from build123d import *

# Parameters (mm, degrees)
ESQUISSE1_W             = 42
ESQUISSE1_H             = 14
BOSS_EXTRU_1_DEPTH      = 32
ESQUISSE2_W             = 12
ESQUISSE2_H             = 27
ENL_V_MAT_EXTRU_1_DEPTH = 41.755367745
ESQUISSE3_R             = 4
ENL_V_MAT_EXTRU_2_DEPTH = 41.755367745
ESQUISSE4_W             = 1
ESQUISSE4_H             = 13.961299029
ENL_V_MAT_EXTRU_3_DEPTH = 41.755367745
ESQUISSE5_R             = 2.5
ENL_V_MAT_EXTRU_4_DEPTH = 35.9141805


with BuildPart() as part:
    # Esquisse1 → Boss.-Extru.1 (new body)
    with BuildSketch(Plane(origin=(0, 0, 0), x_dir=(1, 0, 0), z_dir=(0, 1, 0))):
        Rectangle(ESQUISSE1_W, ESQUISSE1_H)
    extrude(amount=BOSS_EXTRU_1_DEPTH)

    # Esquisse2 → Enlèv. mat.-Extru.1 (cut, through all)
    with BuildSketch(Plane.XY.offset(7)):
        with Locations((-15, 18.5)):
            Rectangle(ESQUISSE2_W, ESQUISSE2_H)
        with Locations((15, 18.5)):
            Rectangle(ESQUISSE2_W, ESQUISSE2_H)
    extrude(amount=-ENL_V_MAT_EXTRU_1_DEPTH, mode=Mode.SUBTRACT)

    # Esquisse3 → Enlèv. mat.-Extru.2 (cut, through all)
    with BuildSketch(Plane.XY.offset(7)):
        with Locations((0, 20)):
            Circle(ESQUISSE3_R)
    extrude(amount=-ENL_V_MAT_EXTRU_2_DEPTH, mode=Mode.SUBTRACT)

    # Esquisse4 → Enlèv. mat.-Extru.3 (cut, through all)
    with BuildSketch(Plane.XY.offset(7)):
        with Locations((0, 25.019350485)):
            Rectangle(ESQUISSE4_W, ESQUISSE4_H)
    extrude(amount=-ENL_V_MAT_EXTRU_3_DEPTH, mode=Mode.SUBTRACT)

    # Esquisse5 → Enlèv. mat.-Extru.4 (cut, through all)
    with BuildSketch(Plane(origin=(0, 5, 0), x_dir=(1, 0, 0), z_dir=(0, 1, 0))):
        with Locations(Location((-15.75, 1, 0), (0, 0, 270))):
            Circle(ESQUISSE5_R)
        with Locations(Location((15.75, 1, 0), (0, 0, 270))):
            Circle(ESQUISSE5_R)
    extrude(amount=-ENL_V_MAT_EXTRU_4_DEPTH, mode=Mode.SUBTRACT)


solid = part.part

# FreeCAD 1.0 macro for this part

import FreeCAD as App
import Part
import Sketcher


def add_polygon(sketch, points):
    """Adds a closed chain of lines whose ends are joined by coincident constraints."""
    first, n = sketch.GeometryCount, len(points)
    for a, b in zip(points, points[1:] + points[:1]):
        sketch.addGeometry(Part.LineSegment(App.Vector(*a, 0), App.Vector(*b, 0)), False)
    for i in range(n):
        sketch.addConstraint(Sketcher.Constraint("Coincident", first + i, 2, first + (i + 1) % n, 1))

doc = App.newDocument("Part")
params = doc.addObject("Spreadsheet::Sheet", "Params")
for row, (alias, value) in enumerate([
    ("sketch1_width", "42 mm"),
    ("sketch1_height", "14 mm"),
    ("pad1_length", "32 mm"),
    ("sketch2_width", "12 mm"),
    ("sketch2_height", "27 mm"),
    ("sketch3_diameter", "8 mm"),
    ("sketch4_width", "1 mm"),
    ("sketch5_diameter", "5 mm"),
], start=1):
    params.set(f"A{row}", alias)
    params.set(f"B{row}", "=" + value)
    params.setAlias(f"B{row}", alias)

body = doc.addObject("PartDesign::Body", "Body")

# Sketch on XZ plane
sketch1 = body.newObject("Sketcher::SketchObject", "Sketch")
sketch1.AttachmentSupport = (doc.getObject("XZ_Plane"), [""])
sketch1.MapMode = "FlatFace"
add_polygon(sketch1, [(-21, -7), (-21, 7), (21, 7), (21, -7)])  # lines 0-3
sketch1.addConstraint(Sketcher.Constraint("Vertical", 0))
sketch1.addConstraint(Sketcher.Constraint("Horizontal", 1))
sketch1.addConstraint(Sketcher.Constraint("Vertical", 2))
sketch1.addConstraint(Sketcher.Constraint("Horizontal", 3))
sketch1.addConstraint(Sketcher.Constraint("Symmetric", 0, 2, 2, 2, -1, 1))
sketch1.addConstraint(Sketcher.Constraint("DistanceX", 1, 1, 1, 2, 42.0))
sketch1.addConstraint(Sketcher.Constraint("DistanceY", 0, 1, 0, 2, 14.0))
sketch1.setExpression("Constraints[9]", "Params.sketch1_width")
sketch1.setExpression("Constraints[10]", "Params.sketch1_height")
pad1 = body.newObject("PartDesign::Pad", "Pad")
pad1.Profile = sketch1
pad1.setExpression("Length", "Params.pad1_length")
pad1.Reversed = True

# Sketch on XY plane
sketch2 = body.newObject("Sketcher::SketchObject", "Sketch001")
sketch2.AttachmentSupport = (doc.getObject("XY_Plane"), [""])
sketch2.MapMode = "FlatFace"
sketch2.AttachmentOffset = App.Placement(App.Vector(0, 0, 7), App.Rotation())
add_polygon(sketch2, [(-21, 32), (-21, 5), (-9, 5), (-9, 32)])  # lines 0-3
add_polygon(sketch2, [(9, 32), (9, 5), (21, 5), (21, 32)])  # lines 4-7
sketch2.addConstraint(Sketcher.Constraint("Vertical", 0))
sketch2.addConstraint(Sketcher.Constraint("Horizontal", 1))
sketch2.addConstraint(Sketcher.Constraint("Vertical", 2))
sketch2.addConstraint(Sketcher.Constraint("Horizontal", 3))
sketch2.addConstraint(Sketcher.Constraint("Vertical", 4))
sketch2.addConstraint(Sketcher.Constraint("Horizontal", 5))
sketch2.addConstraint(Sketcher.Constraint("Vertical", 6))
sketch2.addConstraint(Sketcher.Constraint("Horizontal", 7))
sketch2.addConstraint(Sketcher.Constraint("Symmetric", 1, 2, 4, 2, -2))
sketch2.addConstraint(Sketcher.Constraint("Symmetric", 3, 2, 6, 2, -2))
sketch2.addConstraint(Sketcher.Constraint("DistanceX", 1, 1, 1, 2, 12.0))
sketch2.addConstraint(Sketcher.Constraint("DistanceY", 0, 2, 0, 1, 27.0))
sketch2.addConstraint(Sketcher.Constraint("DistanceX", 0, 2, -1, 1, 21.0))
sketch2.addConstraint(Sketcher.Constraint("DistanceY", -1, 1, 0, 2, 5.0))
sketch2.setExpression("Constraints[18]", "Params.sketch2_width")
sketch2.setExpression("Constraints[19]", "Params.sketch2_height")
pocket1 = body.newObject("PartDesign::Pocket", "Pocket")
pocket1.Profile = sketch2
pocket1.Type = "ThroughAll"

# Sketch on XY plane
sketch3 = body.newObject("Sketcher::SketchObject", "Sketch002")
sketch3.AttachmentSupport = (doc.getObject("XY_Plane"), [""])
sketch3.MapMode = "FlatFace"
sketch3.AttachmentOffset = App.Placement(App.Vector(0, 0, 7), App.Rotation())
sketch3.addGeometry(Part.Circle(App.Vector(0, 20, 0), App.Vector(0, 0, 1), 4), False)
sketch3.addConstraint(Sketcher.Constraint("PointOnObject", 0, 3, -2))
sketch3.addConstraint(Sketcher.Constraint("Diameter", 0, 8.0))
sketch3.addConstraint(Sketcher.Constraint("DistanceY", -1, 1, 0, 3, 20.0))
sketch3.setExpression("Constraints[1]", "Params.sketch3_diameter")
pocket2 = body.newObject("PartDesign::Pocket", "Pocket001")
pocket2.Profile = sketch3
pocket2.Type = "ThroughAll"

# Sketch on XY plane
sketch4 = body.newObject("Sketcher::SketchObject", "Sketch003")
sketch4.AttachmentSupport = (doc.getObject("XY_Plane"), [""])
sketch4.MapMode = "FlatFace"
sketch4.AttachmentOffset = App.Placement(App.Vector(0, 0, 7), App.Rotation())
add_polygon(sketch4, [(-0.5, 32), (-0.5, 18.038701), (0.5, 18.038701), (0.5, 32)])  # lines 0-3
sketch4.addConstraint(Sketcher.Constraint("Vertical", 0))
sketch4.addConstraint(Sketcher.Constraint("Horizontal", 1))
sketch4.addConstraint(Sketcher.Constraint("Vertical", 2))
sketch4.addConstraint(Sketcher.Constraint("Horizontal", 3))
sketch4.addConstraint(Sketcher.Constraint("DistanceX", 1, 1, 1, 2, 1.0))
sketch4.addConstraint(Sketcher.Constraint("DistanceY", -1, 1, 2, 2, 32.0))
sketch4.addConstraint(Sketcher.Constraint("DistanceX", 0, 2, -1, 1, 0.5))
sketch4.addConstraint(Sketcher.Constraint("DistanceY", 0, 2, 0, 1, 13.961299))
sketch4.setExpression("Constraints[8]", "Params.sketch4_width")
pocket3 = body.newObject("PartDesign::Pocket", "Pocket002")
pocket3.Profile = sketch4
pocket3.Type = "ThroughAll"

# Sketch on XZ plane
sketch5 = body.newObject("Sketcher::SketchObject", "Sketch004")
sketch5.AttachmentSupport = (doc.getObject("XZ_Plane"), [""])
sketch5.MapMode = "FlatFace"
sketch5.AttachmentOffset = App.Placement(App.Vector(0, 0, -5), App.Rotation())
sketch5.addGeometry(Part.Circle(App.Vector(-15.75, -1, 0), App.Vector(0, 0, 1), 2.5), False)
sketch5.addGeometry(Part.Circle(App.Vector(15.75, -1, 0), App.Vector(0, 0, 1), 2.5), False)
sketch5.addConstraint(Sketcher.Constraint("Equal", 0, 1))
sketch5.addConstraint(Sketcher.Constraint("Symmetric", 0, 3, 1, 3, -2))
sketch5.addConstraint(Sketcher.Constraint("Diameter", 0, 5.0))
sketch5.addConstraint(Sketcher.Constraint("DistanceY", 0, 3, -1, 1, 1.0))
sketch5.addConstraint(Sketcher.Constraint("DistanceX", 0, 3, 1, 3, 31.5))
sketch5.setExpression("Constraints[2]", "Params.sketch5_diameter")
pocket4 = body.newObject("PartDesign::Pocket", "Pocket003")
pocket4.Profile = sketch5
pocket4.Type = "ThroughAll"
pocket4.Reversed = True

doc.recompute()
